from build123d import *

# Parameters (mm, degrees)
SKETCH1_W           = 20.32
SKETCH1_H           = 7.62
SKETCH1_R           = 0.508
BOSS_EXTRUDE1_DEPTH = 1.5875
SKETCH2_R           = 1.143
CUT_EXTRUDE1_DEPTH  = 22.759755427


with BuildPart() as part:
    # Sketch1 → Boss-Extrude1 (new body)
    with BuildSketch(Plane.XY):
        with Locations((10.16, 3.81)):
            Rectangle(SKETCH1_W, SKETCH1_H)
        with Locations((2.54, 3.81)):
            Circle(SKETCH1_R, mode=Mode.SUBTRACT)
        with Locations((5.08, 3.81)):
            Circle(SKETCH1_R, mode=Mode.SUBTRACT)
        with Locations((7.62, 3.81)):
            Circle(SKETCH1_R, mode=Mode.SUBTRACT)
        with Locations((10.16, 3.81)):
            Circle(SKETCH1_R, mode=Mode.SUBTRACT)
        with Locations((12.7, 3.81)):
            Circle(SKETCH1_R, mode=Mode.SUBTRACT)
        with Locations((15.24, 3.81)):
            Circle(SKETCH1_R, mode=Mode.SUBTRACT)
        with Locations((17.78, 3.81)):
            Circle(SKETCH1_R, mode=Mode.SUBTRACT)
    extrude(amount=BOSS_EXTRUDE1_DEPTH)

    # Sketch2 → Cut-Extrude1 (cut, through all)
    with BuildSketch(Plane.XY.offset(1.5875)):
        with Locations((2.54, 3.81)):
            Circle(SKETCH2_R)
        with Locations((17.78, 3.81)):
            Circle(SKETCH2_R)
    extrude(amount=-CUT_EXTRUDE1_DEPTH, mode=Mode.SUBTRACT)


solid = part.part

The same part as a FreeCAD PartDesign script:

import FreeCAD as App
import Part
import Sketcher
Q = App.Units.Quantity


def add_polygon(sketch, points):
    """Adds a closed chain of lines whose ends are joined by coincident constraints."""
    first, n = sketch.GeometryCount, len(points)
    for a, b in zip(points, points[1:] + points[:1]):
        sketch.addGeometry(Part.LineSegment(App.Vector(*a, 0), App.Vector(*b, 0)), False)
    for i in range(n):
        sketch.addConstraint(Sketcher.Constraint("Coincident", first + i, 2, first + (i + 1) % n, 1))

doc = App.newDocument("Part")
body = doc.addObject("PartDesign::Body", "Body")

# Sketch on XY plane
sketch1 = body.newObject("Sketcher::SketchObject", "Sketch")
sketch1.AttachmentSupport = (doc.getObject("XY_Plane"), [""])
sketch1.MapMode = "FlatFace"
add_polygon(sketch1, [(0, 7.62), (0, 0), (20.32, 0), (20.32, 7.62)])  # lines 0-3
sketch1.addGeometry(Part.Circle(App.Vector(2.54, 3.81, 0), App.Vector(0, 0, 1), 0.508), False)  # 4
sketch1.addGeometry(Part.Circle(App.Vector(5.08, 3.81, 0), App.Vector(0, 0, 1), 0.508), False)  # 5
sketch1.addGeometry(Part.Circle(App.Vector(7.62, 3.81, 0), App.Vector(0, 0, 1), 0.508), False)  # 6
sketch1.addGeometry(Part.Circle(App.Vector(10.16, 3.81, 0), App.Vector(0, 0, 1), 0.508), False)  # 7
sketch1.addGeometry(Part.Circle(App.Vector(12.7, 3.81, 0), App.Vector(0, 0, 1), 0.508), False)  # 8
sketch1.addGeometry(Part.Circle(App.Vector(15.24, 3.81, 0), App.Vector(0, 0, 1), 0.508), False)  # 9
sketch1.addGeometry(Part.Circle(App.Vector(17.78, 3.81, 0), App.Vector(0, 0, 1), 0.508), False)  # 10
sketch1.addConstraint([
    Sketcher.Constraint("Vertical", 0),
    Sketcher.Constraint("Horizontal", 1),
    Sketcher.Constraint("Vertical", 2),
    Sketcher.Constraint("Horizontal", 3),
    Sketcher.Constraint("Coincident", 0, 2, -1, 1),
    Sketcher.Constraint("Equal", 4, 5),
    Sketcher.Constraint("Equal", 5, 6),
    Sketcher.Constraint("Equal", 6, 7),
    Sketcher.Constraint("Equal", 7, 8),
    Sketcher.Constraint("Equal", 8, 9),
    Sketcher.Constraint("Equal", 9, 10),
    Sketcher.Constraint("Horizontal", 4, 3, 5, 3),
    Sketcher.Constraint("Horizontal", 5, 3, 6, 3),
    Sketcher.Constraint("Horizontal", 6, 3, 7, 3),
    Sketcher.Constraint("Horizontal", 7, 3, 8, 3),
    Sketcher.Constraint("Horizontal", 8, 3, 9, 3),
    Sketcher.Constraint("Horizontal", 9, 3, 10, 3),
    Sketcher.Constraint("Diameter", 4, Q("0.04 in")),
    Sketcher.Constraint("DistanceX", 1, 1, 1, 2, Q("0.8 in")),
    Sketcher.Constraint("DistanceY", 0, 2, 0, 1, Q("0.3 in")),
    Sketcher.Constraint("DistanceX", -1, 1, 4, 3, Q("0.1 in")),
    Sketcher.Constraint("DistanceX", -1, 1, 5, 3, Q("0.2 in")),
    Sketcher.Constraint("DistanceX", -1, 1, 6, 3, Q("0.3 in")),
    Sketcher.Constraint("DistanceX", -1, 1, 7, 3, Q("0.4 in")),
    Sketcher.Constraint("DistanceX", -1, 1, 8, 3, Q("0.5 in")),
    Sketcher.Constraint("DistanceX", -1, 1, 9, 3, Q("0.6 in")),
    Sketcher.Constraint("DistanceX", -1, 1, 10, 3, Q("0.7 in")),
    Sketcher.Constraint("DistanceY", -1, 1, 4, 3, Q("0.15 in")),
])
pad1 = body.newObject("PartDesign::Pad", "Pad")
pad1.Profile = sketch1
pad1.Length = Q("0.0625 in")

# Sketch on XY plane
sketch2 = body.newObject("Sketcher::SketchObject", "Sketch001")
sketch2.AttachmentSupport = (doc.getObject("XY_Plane"), [""])
sketch2.MapMode = "FlatFace"
sketch2.AttachmentOffset = App.Placement(App.Vector(0, 0, 0.0625 * 25.4), App.Rotation())
sketch2.addGeometry([
    Part.Circle(App.Vector(2.54, 3.81, 0), App.Vector(0, 0, 1), 1.143),
    Part.Circle(App.Vector(17.78, 3.81, 0), App.Vector(0, 0, 1), 1.143),
], False)
sketch2.addConstraint([
    Sketcher.Constraint("Equal", 0, 1),
    Sketcher.Constraint("Horizontal", 0, 3, 1, 3),
    Sketcher.Constraint("Diameter", 0, Q("0.09 in")),
    Sketcher.Constraint("DistanceX", -1, 1, 0, 3, Q("0.1 in")),
    Sketcher.Constraint("DistanceX", -1, 1, 1, 3, Q("0.7 in")),
    Sketcher.Constraint("DistanceY", -1, 1, 0, 3, Q("0.15 in")),
])
pocket1 = body.newObject("PartDesign::Pocket", "Pocket")
pocket1.Profile = sketch2
pocket1.Type = "ThroughAll"

doc.recompute()
